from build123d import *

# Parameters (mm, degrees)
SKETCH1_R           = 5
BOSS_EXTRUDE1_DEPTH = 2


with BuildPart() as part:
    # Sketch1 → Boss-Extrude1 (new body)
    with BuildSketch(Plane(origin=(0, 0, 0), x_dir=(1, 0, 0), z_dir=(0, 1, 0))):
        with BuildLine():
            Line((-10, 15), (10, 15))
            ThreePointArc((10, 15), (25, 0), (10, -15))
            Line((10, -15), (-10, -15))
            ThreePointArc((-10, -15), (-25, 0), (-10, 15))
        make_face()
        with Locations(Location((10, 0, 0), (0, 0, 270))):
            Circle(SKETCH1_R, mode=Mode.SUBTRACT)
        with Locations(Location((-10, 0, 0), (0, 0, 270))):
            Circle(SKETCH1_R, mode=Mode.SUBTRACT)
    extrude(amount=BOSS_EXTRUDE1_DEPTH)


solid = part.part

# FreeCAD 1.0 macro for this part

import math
import FreeCAD as App
import Part
import Sketcher

V = App.Vector
Q = App.Units.Quantity

doc = App.newDocument("Part")
body = doc.addObject("PartDesign::Body", "Body")

# Sketch on XZ plane
sketch1 = doc.addObject("Sketcher::SketchObject", "Sketch")
body.addObject(sketch1)
sketch1.AttachmentSupport = (doc.XZ_Plane, [""])
sketch1.MapMode = "FlatFace"
sketch1.addGeometry([
    Part.LineSegment(V(10, -15, 0), V(-10, -15, 0)),  # 0
    Part.ArcOfCircle(Part.Circle(V(-10, 0, 0), V(0, 0, 1), 15), math.radians(90), math.radians(270)),  # 1
    Part.LineSegment(V(-10, 15, 0), V(10, 15, 0)),  # 2
    Part.ArcOfCircle(Part.Circle(V(10, 0, 0), V(0, 0, 1), 15), math.radians(-90), math.radians(90)),  # 3
    Part.Circle(V(10, 0, 0), V(0, 0, 1), 5),  # 4
    Part.Circle(V(-10, 0, 0), V(0, 0, 1), 5),  # 5
], False)
sketch1.addConstraint([
    Sketcher.Constraint("Tangent", 0, 2, 1, 2),
    Sketcher.Constraint("Tangent", 1, 1, 2, 1),
    Sketcher.Constraint("Tangent", 2, 2, 3, 2),
    Sketcher.Constraint("Tangent", 3, 1, 0, 1),
    Sketcher.Constraint("Horizontal", 0),
    Sketcher.Constraint("Horizontal", 2),
    Sketcher.Constraint("Coincident", 4, 3, 3, 3),
    Sketcher.Constraint("Coincident", 5, 3, 1, 3),
    Sketcher.Constraint("Equal", 4, 5),
    Sketcher.Constraint("Symmetric", 1, 3, 3, 3, -1, 1),
    Sketcher.Constraint("Diameter", 4, Q("10 mm")),
    Sketcher.Constraint("Radius", 1, Q("15 mm")),
    Sketcher.Constraint("DistanceX", 0, 2, 0, 1, Q("20 mm")),
])
pad1 = doc.addObject("PartDesign::Pad", "Pad")
body.addObject(pad1)
pad1.Profile = sketch1
pad1.Length = 2
pad1.Reversed = True

doc.recompute()
